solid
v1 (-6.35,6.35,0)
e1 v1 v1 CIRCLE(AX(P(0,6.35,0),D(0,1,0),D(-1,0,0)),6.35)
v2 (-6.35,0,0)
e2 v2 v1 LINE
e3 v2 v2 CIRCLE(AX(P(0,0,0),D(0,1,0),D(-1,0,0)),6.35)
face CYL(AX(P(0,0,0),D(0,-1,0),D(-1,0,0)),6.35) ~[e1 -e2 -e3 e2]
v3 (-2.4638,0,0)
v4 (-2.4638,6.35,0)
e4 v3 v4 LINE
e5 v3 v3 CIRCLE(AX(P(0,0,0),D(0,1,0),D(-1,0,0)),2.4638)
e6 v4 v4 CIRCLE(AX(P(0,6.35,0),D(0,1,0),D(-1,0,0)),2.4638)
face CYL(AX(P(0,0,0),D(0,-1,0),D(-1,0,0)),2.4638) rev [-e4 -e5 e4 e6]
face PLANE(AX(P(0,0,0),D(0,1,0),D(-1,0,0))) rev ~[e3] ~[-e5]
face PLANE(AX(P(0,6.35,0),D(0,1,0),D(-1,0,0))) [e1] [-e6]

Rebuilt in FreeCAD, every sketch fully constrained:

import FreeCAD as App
import Part
import Sketcher
Q = App.Units.Quantity

doc = App.newDocument("Part")
body = doc.addObject("PartDesign::Body", "Body")

# Sketch on XZ plane
sketch1 = body.newObject("Sketcher::SketchObject", "Sketch")
sketch1.AttachmentSupport = (doc.getObject("XZ_Plane"), [""])
sketch1.MapMode = "FlatFace"
sketch1.addGeometry([
    Part.Circle(App.Vector(0, 0, 0), App.Vector(0, 0, 1), 6.35),
    Part.Circle(App.Vector(0, 0, 0), App.Vector(0, 0, 1), 2.4638),
], False)
sketch1.addConstraint([
    Sketcher.Constraint("Coincident", 0, 3, -1, 1),
    Sketcher.Constraint("Coincident", 1, 3, -1, 1),
    Sketcher.Constraint("Diameter", 0, Q("0.5 in")),
    Sketcher.Constraint("Diameter", 1, Q("0.194 in")),
])
pad1 = body.newObject("PartDesign::Pad", "Pad")
pad1.Profile = sketch1
pad1.Length = Q("0.25 in")
pad1.Reversed = True

doc.recompute()
